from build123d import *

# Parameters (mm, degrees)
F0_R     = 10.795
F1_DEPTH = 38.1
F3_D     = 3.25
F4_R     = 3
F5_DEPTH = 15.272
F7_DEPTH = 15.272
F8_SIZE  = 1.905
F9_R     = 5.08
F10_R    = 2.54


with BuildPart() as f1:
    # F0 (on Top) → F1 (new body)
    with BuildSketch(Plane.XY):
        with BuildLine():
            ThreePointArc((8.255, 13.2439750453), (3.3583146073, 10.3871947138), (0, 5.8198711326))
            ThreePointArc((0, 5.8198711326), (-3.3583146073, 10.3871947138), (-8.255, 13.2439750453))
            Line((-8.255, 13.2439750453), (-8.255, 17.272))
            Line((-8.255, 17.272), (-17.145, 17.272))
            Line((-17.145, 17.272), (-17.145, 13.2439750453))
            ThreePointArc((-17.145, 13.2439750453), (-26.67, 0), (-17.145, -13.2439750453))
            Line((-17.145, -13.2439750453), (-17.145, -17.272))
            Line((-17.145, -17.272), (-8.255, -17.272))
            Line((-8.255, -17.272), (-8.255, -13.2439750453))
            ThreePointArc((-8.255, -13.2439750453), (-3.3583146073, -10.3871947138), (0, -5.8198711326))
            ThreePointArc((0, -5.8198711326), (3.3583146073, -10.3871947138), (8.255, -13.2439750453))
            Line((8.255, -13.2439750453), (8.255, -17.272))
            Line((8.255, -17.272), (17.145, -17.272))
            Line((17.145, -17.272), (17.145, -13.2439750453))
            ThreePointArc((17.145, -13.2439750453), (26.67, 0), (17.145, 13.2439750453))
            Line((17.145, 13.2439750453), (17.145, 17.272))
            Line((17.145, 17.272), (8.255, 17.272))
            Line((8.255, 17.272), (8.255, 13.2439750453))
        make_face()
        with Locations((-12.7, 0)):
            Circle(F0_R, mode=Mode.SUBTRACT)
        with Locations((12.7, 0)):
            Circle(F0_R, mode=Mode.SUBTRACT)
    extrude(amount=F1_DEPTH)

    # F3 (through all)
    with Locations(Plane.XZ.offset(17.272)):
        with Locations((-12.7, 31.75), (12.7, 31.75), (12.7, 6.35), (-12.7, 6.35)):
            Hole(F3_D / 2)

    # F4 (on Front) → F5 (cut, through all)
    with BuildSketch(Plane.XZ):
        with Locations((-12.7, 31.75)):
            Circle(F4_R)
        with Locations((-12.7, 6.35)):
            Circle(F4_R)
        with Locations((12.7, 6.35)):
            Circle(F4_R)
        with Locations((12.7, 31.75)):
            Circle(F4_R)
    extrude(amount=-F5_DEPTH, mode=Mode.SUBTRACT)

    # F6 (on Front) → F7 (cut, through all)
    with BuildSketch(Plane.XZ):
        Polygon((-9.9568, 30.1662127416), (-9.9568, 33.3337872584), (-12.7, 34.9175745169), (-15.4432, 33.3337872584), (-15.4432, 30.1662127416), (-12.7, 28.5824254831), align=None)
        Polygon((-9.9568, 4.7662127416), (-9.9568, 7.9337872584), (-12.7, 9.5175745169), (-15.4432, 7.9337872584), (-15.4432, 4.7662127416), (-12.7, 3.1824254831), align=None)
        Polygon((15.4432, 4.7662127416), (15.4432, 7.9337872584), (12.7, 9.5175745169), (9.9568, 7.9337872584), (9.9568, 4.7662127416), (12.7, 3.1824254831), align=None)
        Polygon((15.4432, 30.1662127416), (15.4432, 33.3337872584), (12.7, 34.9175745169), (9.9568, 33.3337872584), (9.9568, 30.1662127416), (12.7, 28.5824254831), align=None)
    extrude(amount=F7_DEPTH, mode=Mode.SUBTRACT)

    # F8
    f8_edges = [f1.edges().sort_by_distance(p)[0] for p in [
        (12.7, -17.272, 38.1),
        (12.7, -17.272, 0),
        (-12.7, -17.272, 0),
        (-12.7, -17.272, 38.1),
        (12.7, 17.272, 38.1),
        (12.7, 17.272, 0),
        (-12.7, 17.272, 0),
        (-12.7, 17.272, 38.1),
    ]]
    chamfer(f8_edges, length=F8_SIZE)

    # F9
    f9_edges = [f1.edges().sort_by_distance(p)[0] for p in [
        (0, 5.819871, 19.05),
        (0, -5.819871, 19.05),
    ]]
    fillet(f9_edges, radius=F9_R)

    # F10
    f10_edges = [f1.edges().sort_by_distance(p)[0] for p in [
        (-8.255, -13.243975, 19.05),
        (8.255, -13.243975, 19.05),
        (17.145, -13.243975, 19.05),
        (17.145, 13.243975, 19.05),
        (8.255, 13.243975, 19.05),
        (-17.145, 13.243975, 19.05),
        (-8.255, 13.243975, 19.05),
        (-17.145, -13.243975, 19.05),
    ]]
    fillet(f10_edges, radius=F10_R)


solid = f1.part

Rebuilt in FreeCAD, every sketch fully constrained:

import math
import FreeCAD as App
import Part
import Sketcher
Q = App.Units.Quantity


def edges_at(feature, points):
    """Names of the edges that pass closest to the given points."""
    edges = feature.Shape.Edges
    near = lambda p: min(range(len(edges)), key=lambda i: edges[i].distToShape(Part.Vertex(*p))[0])
    return sorted({f"Edge{near(p) + 1}" for p in points})


def add_polygon(sketch, points):
    """Adds a closed chain of lines whose ends are joined by coincident constraints."""
    first, n = sketch.GeometryCount, len(points)
    for a, b in zip(points, points[1:] + points[:1]):
        sketch.addGeometry(Part.LineSegment(App.Vector(*a, 0), App.Vector(*b, 0)), False)
    for i in range(n):
        sketch.addConstraint(Sketcher.Constraint("Coincident", first + i, 2, first + (i + 1) % n, 1))

doc = App.newDocument("Part")
params = doc.addObject("Spreadsheet::Sheet", "Params")
for row, (alias, value) in enumerate([
    ("sketch1_diameter", "0.85 in"),
    ("sketch1_radius", "0.55 in"),
    ("sketch1_width", "0.35 in"),
    ("pad1_length", "1.5 in"),
    ("hole_diameter", "3.25 mm"),
    ("pocket1_length", "15.272 mm"),
    ("pocket2_length", "15.272 mm"),
    ("chamfer_size", "0.075 in"),
    ("fillet_radius", "0.2 in"),
    ("fillet2_radius", "0.1 in"),
], start=1):
    params.set(f"A{row}", alias)
    params.set(f"B{row}", "=" + value)
    params.setAlias(f"B{row}", alias)

body = doc.addObject("PartDesign::Body", "Body")

# Sketch on XY plane
sketch1 = doc.addObject("Sketcher::SketchObject", "Sketch")
body.addObject(sketch1)
sketch1.AttachmentSupport = (doc.XY_Plane, [""])
sketch1.MapMode = "FlatFace"
sketch1.addGeometry([
    Part.ArcOfCircle(Part.Circle(App.Vector(12.7, 0, 0), App.Vector(0, 0, 1), 13.97), math.radians(108.553005), math.radians(155.380023)),  # 0
    Part.ArcOfCircle(Part.Circle(App.Vector(-12.7, 0, 0), App.Vector(0, 0, 1), 13.97), math.radians(24.619977), math.radians(71.446995)),  # 1
    Part.LineSegment(App.Vector(-8.255, 13.243975, 0), App.Vector(-8.255, 17.272, 0)),  # 2
    Part.LineSegment(App.Vector(-8.255, 17.272, 0), App.Vector(-17.145, 17.272, 0)),  # 3
    Part.LineSegment(App.Vector(-17.145, 17.272, 0), App.Vector(-17.145, 13.243975, 0)),  # 4
    Part.ArcOfCircle(Part.Circle(App.Vector(-12.7, 0, 0), App.Vector(0, 0, 1), 13.97), math.radians(108.553005), math.radians(251.446995)),  # 5
    Part.LineSegment(App.Vector(-17.145, -13.243975, 0), App.Vector(-17.145, -17.272, 0)),  # 6
    Part.LineSegment(App.Vector(-17.145, -17.272, 0), App.Vector(-8.255, -17.272, 0)),  # 7
    Part.LineSegment(App.Vector(-8.255, -17.272, 0), App.Vector(-8.255, -13.243975, 0)),  # 8
    Part.ArcOfCircle(Part.Circle(App.Vector(-12.7, 0, 0), App.Vector(0, 0, 1), 13.97), math.radians(-71.446995), math.radians(-24.619977)),  # 9
    Part.ArcOfCircle(Part.Circle(App.Vector(12.7, 0, 0), App.Vector(0, 0, 1), 13.97), math.radians(-155.380023), math.radians(-108.553005)),  # 10
    Part.LineSegment(App.Vector(8.255, -13.243975, 0), App.Vector(8.255, -17.272, 0)),  # 11
    Part.LineSegment(App.Vector(8.255, -17.272, 0), App.Vector(17.145, -17.272, 0)),  # 12
    Part.LineSegment(App.Vector(17.145, -17.272, 0), App.Vector(17.145, -13.243975, 0)),  # 13
    Part.ArcOfCircle(Part.Circle(App.Vector(12.7, 0, 0), App.Vector(0, 0, 1), 13.97), math.radians(-71.446995), math.radians(71.446995)),  # 14
    Part.LineSegment(App.Vector(17.145, 13.243975, 0), App.Vector(17.145, 17.272, 0)),  # 15
    Part.LineSegment(App.Vector(17.145, 17.272, 0), App.Vector(8.255, 17.272, 0)),  # 16
    Part.LineSegment(App.Vector(8.255, 17.272, 0), App.Vector(8.255, 13.243975, 0)),  # 17
    Part.Circle(App.Vector(-12.7, 0, 0), App.Vector(0, 0, 1), 10.795),  # 18
    Part.Circle(App.Vector(12.7, 0, 0), App.Vector(0, 0, 1), 10.795),  # 19
], False)
sketch1.addConstraint([
    Sketcher.Constraint("Coincident", 0, 2, 1, 1),
    Sketcher.Constraint("Coincident", 1, 2, 2, 1),
    Sketcher.Constraint("Coincident", 2, 2, 3, 1),
    Sketcher.Constraint("Coincident", 3, 2, 4, 1),
    Sketcher.Constraint("Coincident", 4, 2, 5, 1),
    Sketcher.Constraint("Coincident", 5, 2, 6, 1),
    Sketcher.Constraint("Coincident", 6, 2, 7, 1),
    Sketcher.Constraint("Coincident", 7, 2, 8, 1),
    Sketcher.Constraint("Coincident", 8, 2, 9, 1),
    Sketcher.Constraint("Coincident", 9, 2, 10, 1),
    Sketcher.Constraint("Coincident", 10, 2, 11, 1),
    Sketcher.Constraint("Coincident", 11, 2, 12, 1),
    Sketcher.Constraint("Coincident", 12, 2, 13, 1),
    Sketcher.Constraint("Coincident", 13, 2, 14, 1),
    Sketcher.Constraint("Coincident", 14, 2, 15, 1),
    Sketcher.Constraint("Coincident", 15, 2, 16, 1),
    Sketcher.Constraint("Coincident", 16, 2, 17, 1),
    Sketcher.Constraint("Coincident", 17, 2, 0, 1),
    Sketcher.Constraint("Vertical", 2),
    Sketcher.Constraint("Horizontal", 3),
    Sketcher.Constraint("Vertical", 4),
    Sketcher.Constraint("Vertical", 6),
    Sketcher.Constraint("Horizontal", 7),
    Sketcher.Constraint("Vertical", 8),
    Sketcher.Constraint("Vertical", 11),
    Sketcher.Constraint("Horizontal", 12),
    Sketcher.Constraint("Vertical", 13),
    Sketcher.Constraint("Vertical", 15),
    Sketcher.Constraint("Horizontal", 16),
    Sketcher.Constraint("Vertical", 17),
    Sketcher.Constraint("Coincident", 5, 3, 1, 3),
    Sketcher.Constraint("Coincident", 9, 3, 1, 3),
    Sketcher.Constraint("Coincident", 10, 3, 0, 3),
    Sketcher.Constraint("Coincident", 14, 3, 0, 3),
    Sketcher.Constraint("Coincident", 18, 3, 1, 3),
    Sketcher.Constraint("Coincident", 19, 3, 0, 3),
    Sketcher.Constraint("Equal", 0, 1),
    Sketcher.Constraint("Equal", 1, 5),
    Sketcher.Constraint("Equal", 5, 9),
    Sketcher.Constraint("Equal", 9, 10),
    Sketcher.Constraint("Equal", 10, 14),
    Sketcher.Constraint("Equal", 18, 19),
    Sketcher.Constraint("Symmetric", 0, 3, 1, 3, -1, 1),
    Sketcher.Constraint("Symmetric", 2, 2, 11, 2, -1, 1),
    Sketcher.Constraint("Symmetric", 6, 2, 15, 2, -1, 1),
    Sketcher.Constraint("Symmetric", 8, 2, 10, 2, -2),
    Sketcher.Constraint("Symmetric", 6, 2, 12, 2, -2),
    Sketcher.Constraint("Horizontal", 1, 2, 4, 2),
    Sketcher.Constraint("Horizontal", 5, 2, 8, 2),
    Sketcher.Constraint("Horizontal", 14, 2, 17, 2),
    Sketcher.Constraint("Diameter", 18, Q("0.85 in")),
    Sketcher.Constraint("Radius", 0, Q("0.55 in")),
    Sketcher.Constraint("DistanceX", 1, 3, 0, 3, Q("1 in")),
    Sketcher.Constraint("DistanceX", 3, 2, 3, 1, Q("0.35 in")),
    Sketcher.Constraint("DistanceY", -1, 1, 2, 2, Q("0.68 in")),
])
sketch1.setExpression("Constraints[50]", "Params.sketch1_diameter")
sketch1.setExpression("Constraints[51]", "Params.sketch1_radius")
sketch1.setExpression("Constraints[53]", "Params.sketch1_width")
pad1 = doc.addObject("PartDesign::Pad", "Pad")
body.addObject(pad1)
pad1.Profile = sketch1
pad1.setExpression("Length", "Params.pad1_length")

# Sketch on XZ plane
sketch2 = doc.addObject("Sketcher::SketchObject", "Sketch001")
body.addObject(sketch2)
sketch2.AttachmentSupport = (doc.XZ_Plane, [""])
sketch2.MapMode = "FlatFace"
sketch2.AttachmentOffset = App.Placement(App.Vector(0, 0, 0.68 * 25.4), App.Rotation())
sketch2.addGeometry([
    Part.Circle(App.Vector(-12.7, 31.75, 0), App.Vector(0, 0, 1), 1.625),
    Part.Circle(App.Vector(12.7, 31.75, 0), App.Vector(0, 0, 1), 1.625),
    Part.Circle(App.Vector(12.7, 6.35, 0), App.Vector(0, 0, 1), 1.625),
    Part.Circle(App.Vector(-12.7, 6.35, 0), App.Vector(0, 0, 1), 1.625),
], False)
sketch2.addConstraint([
    Sketcher.Constraint("Equal", 0, 1),
    Sketcher.Constraint("Equal", 1, 2),
    Sketcher.Constraint("Equal", 2, 3),
    Sketcher.Constraint("Symmetric", 0, 3, 1, 3, -2),
    Sketcher.Constraint("Symmetric", 2, 3, 3, 3, -2),
    Sketcher.Constraint("Vertical", 1, 3, 2, 3),
    Sketcher.Constraint("DistanceX", 0, 3, 1, 3, Q("1 in")),
    Sketcher.Constraint("DistanceY", 2, 3, 1, 3, Q("1 in")),
    Sketcher.Constraint("Diameter", 0, 3.25),
    Sketcher.Constraint("DistanceY", -1, 1, 0, 3, Q("1.25 in")),
])
doc.recompute()
hole = doc.addObject("PartDesign::Hole", "Hole")
body.addObject(hole)
hole.Profile = sketch2
hole.ThreadType = "None"
hole.setExpression("Diameter", "Params.hole_diameter")
hole.DepthType = "ThroughAll"

# Sketch on XZ plane
sketch3 = doc.addObject("Sketcher::SketchObject", "Sketch002")
body.addObject(sketch3)
sketch3.AttachmentSupport = (doc.XZ_Plane, [""])
sketch3.MapMode = "FlatFace"
sketch3.addGeometry([
    Part.Circle(App.Vector(-12.7, 31.75, 0), App.Vector(0, 0, 1), 3),
    Part.Circle(App.Vector(-12.7, 6.35, 0), App.Vector(0, 0, 1), 3),
    Part.Circle(App.Vector(12.7, 6.35, 0), App.Vector(0, 0, 1), 3),
    Part.Circle(App.Vector(12.7, 31.75, 0), App.Vector(0, 0, 1), 3),
], False)
sketch3.addConstraint([
    Sketcher.Constraint("Equal", 0, 1),
    Sketcher.Constraint("Equal", 1, 2),
    Sketcher.Constraint("Equal", 2, 3),
    Sketcher.Constraint("Symmetric", 1, 3, 2, 3, -2),
    Sketcher.Constraint("Symmetric", 0, 3, 3, 3, -2),
    Sketcher.Constraint("Vertical", 0, 3, 1, 3),
    Sketcher.Constraint("DistanceY", 1, 3, 0, 3, Q("1 in")),
    Sketcher.Constraint("DistanceX", 1, 3, 2, 3, Q("1 in")),
    Sketcher.Constraint("Diameter", 0, 6.0),
    Sketcher.Constraint("DistanceY", -1, 1, 0, 3, Q("1.25 in")),
])
pocket1 = doc.addObject("PartDesign::Pocket", "Pocket")
body.addObject(pocket1)
pocket1.Profile = sketch3
pocket1.setExpression("Length", "Params.pocket1_length")

# Sketch on XZ plane
sketch4 = doc.addObject("Sketcher::SketchObject", "Sketch003")
body.addObject(sketch4)
sketch4.AttachmentSupport = (doc.XZ_Plane, [""])
sketch4.MapMode = "FlatFace"
add_polygon(sketch4, [(-9.9568, 30.166213), (-9.9568, 33.333787), (-12.7, 34.917575), (-15.4432, 33.333787), (-15.4432, 30.166213), (-12.7, 28.582425)])  # lines 0-5
add_polygon(sketch4, [(-9.9568, 4.766213), (-9.9568, 7.933787), (-12.7, 9.517575), (-15.4432, 7.933787), (-15.4432, 4.766213), (-12.7, 3.182425)])  # lines 6-11
add_polygon(sketch4, [(15.4432, 4.766213), (15.4432, 7.933787), (12.7, 9.517575), (9.9568, 7.933787), (9.9568, 4.766213), (12.7, 3.182425)])  # lines 12-17
add_polygon(sketch4, [(15.4432, 30.166213), (15.4432, 33.333787), (12.7, 34.917575), (9.9568, 33.333787), (9.9568, 30.166213), (12.7, 28.582425)])  # lines 18-23
sketch4.addConstraint([
    Sketcher.Constraint("Vertical", 0),
    Sketcher.Constraint("Vertical", 3),
    Sketcher.Constraint("Vertical", 6),
    Sketcher.Constraint("Vertical", 9),
    Sketcher.Constraint("Vertical", 12),
    Sketcher.Constraint("Vertical", 15),
    Sketcher.Constraint("Vertical", 18),
    Sketcher.Constraint("Vertical", 21),
    Sketcher.Constraint("Symmetric", 8, 2, 12, 2, -2),
    Sketcher.Constraint("Symmetric", 7, 2, 13, 2, -2),
    Sketcher.Constraint("Symmetric", 6, 2, 14, 2, -2),
    Sketcher.Constraint("Symmetric", 10, 2, 16, 2, -2),
    Sketcher.Constraint("Symmetric", 2, 2, 18, 2, -2),
    Sketcher.Constraint("Symmetric", 1, 2, 19, 2, -2),
    Sketcher.Constraint("Symmetric", 0, 2, 20, 2, -2),
    Sketcher.Constraint("Symmetric", 4, 2, 22, 2, -2),
    Sketcher.Constraint("Parallel", 1, 4),
    Sketcher.Constraint("Parallel", 2, 5),
    Sketcher.Constraint("Parallel", 4, 7),
    Sketcher.Constraint("Parallel", 5, 8),
    Sketcher.Constraint("Parallel", 7, 10),
    Sketcher.Constraint("Parallel", 8, 11),
    Sketcher.Constraint("Parallel", 10, 13),
    Sketcher.Constraint("Parallel", 13, 16),
    Sketcher.Constraint("Parallel", 14, 17),
    Sketcher.Constraint("Parallel", 19, 22),
    Sketcher.Constraint("Parallel", 20, 23),
    Sketcher.Constraint("Horizontal", 0, 2, 2, 2),
    Sketcher.Constraint("Horizontal", 3, 2, 5, 2),
    Sketcher.Constraint("Horizontal", 6, 2, 8, 2),
    Sketcher.Constraint("Horizontal", 9, 2, 11, 2),
    Sketcher.Constraint("Vertical", 5, 2, 6, 2),
    Sketcher.Constraint("Vertical", 4, 2, 7, 2),
    Sketcher.Constraint("Equal", 3, 6),
    Sketcher.Constraint("Angle", 1, Q("150 deg")),
    Sketcher.Constraint("DistanceY", 6, 2, 0, 2, Q("1 in")),
    Sketcher.Constraint("DistanceX", 6, 2, 12, 2, Q("1 in")),
    Sketcher.Constraint("DistanceX", 0, 2, -1, 1, Q("0.392 in")),
    Sketcher.Constraint("DistanceY", 0, 1, 0, 2, 3.167575),
    Sketcher.Constraint("DistanceY", -1, 1, 0, 2, 33.333787),
])
pocket2 = doc.addObject("PartDesign::Pocket", "Pocket001")
body.addObject(pocket2)
pocket2.Profile = sketch4
pocket2.setExpression("Length", "Params.pocket2_length")
pocket2.Reversed = True
doc.recompute()

chamfer = doc.addObject("PartDesign::Chamfer", "Chamfer")
body.addObject(chamfer)
chamfer.Base = (pocket2, edges_at(pocket2, [
    (12.7, -17.272, 38.1),
    (12.7, -17.272, 0),
    (-12.7, -17.272, 0),
    (-12.7, -17.272, 38.1),
    (12.7, 17.272, 38.1),
    (12.7, 17.272, 0),
    (-12.7, 17.272, 0),
    (-12.7, 17.272, 38.1),
]))
chamfer.setExpression("Size", "Params.chamfer_size")
doc.recompute()

fillet = doc.addObject("PartDesign::Fillet", "Fillet")
body.addObject(fillet)
fillet.Base = (chamfer, edges_at(chamfer, [(0, 5.82, 19.05), (0, -5.82, 19.05)]))
fillet.setExpression("Radius", "Params.fillet_radius")
doc.recompute()

fillet2 = doc.addObject("PartDesign::Fillet", "Fillet001")
body.addObject(fillet2)
fillet2.Base = (fillet, edges_at(fillet, [
    (-8.255, -13.244, 19.05),
    (8.255, -13.244, 19.05),
    (17.145, -13.244, 19.05),
    (17.145, 13.244, 19.05),
    (8.255, 13.244, 19.05),
    (-17.145, 13.244, 19.05),
    (-8.255, 13.244, 19.05),
    (-17.145, -13.244, 19.05),
]))
fillet2.setExpression("Radius", "Params.fillet2_radius")

doc.recompute()
